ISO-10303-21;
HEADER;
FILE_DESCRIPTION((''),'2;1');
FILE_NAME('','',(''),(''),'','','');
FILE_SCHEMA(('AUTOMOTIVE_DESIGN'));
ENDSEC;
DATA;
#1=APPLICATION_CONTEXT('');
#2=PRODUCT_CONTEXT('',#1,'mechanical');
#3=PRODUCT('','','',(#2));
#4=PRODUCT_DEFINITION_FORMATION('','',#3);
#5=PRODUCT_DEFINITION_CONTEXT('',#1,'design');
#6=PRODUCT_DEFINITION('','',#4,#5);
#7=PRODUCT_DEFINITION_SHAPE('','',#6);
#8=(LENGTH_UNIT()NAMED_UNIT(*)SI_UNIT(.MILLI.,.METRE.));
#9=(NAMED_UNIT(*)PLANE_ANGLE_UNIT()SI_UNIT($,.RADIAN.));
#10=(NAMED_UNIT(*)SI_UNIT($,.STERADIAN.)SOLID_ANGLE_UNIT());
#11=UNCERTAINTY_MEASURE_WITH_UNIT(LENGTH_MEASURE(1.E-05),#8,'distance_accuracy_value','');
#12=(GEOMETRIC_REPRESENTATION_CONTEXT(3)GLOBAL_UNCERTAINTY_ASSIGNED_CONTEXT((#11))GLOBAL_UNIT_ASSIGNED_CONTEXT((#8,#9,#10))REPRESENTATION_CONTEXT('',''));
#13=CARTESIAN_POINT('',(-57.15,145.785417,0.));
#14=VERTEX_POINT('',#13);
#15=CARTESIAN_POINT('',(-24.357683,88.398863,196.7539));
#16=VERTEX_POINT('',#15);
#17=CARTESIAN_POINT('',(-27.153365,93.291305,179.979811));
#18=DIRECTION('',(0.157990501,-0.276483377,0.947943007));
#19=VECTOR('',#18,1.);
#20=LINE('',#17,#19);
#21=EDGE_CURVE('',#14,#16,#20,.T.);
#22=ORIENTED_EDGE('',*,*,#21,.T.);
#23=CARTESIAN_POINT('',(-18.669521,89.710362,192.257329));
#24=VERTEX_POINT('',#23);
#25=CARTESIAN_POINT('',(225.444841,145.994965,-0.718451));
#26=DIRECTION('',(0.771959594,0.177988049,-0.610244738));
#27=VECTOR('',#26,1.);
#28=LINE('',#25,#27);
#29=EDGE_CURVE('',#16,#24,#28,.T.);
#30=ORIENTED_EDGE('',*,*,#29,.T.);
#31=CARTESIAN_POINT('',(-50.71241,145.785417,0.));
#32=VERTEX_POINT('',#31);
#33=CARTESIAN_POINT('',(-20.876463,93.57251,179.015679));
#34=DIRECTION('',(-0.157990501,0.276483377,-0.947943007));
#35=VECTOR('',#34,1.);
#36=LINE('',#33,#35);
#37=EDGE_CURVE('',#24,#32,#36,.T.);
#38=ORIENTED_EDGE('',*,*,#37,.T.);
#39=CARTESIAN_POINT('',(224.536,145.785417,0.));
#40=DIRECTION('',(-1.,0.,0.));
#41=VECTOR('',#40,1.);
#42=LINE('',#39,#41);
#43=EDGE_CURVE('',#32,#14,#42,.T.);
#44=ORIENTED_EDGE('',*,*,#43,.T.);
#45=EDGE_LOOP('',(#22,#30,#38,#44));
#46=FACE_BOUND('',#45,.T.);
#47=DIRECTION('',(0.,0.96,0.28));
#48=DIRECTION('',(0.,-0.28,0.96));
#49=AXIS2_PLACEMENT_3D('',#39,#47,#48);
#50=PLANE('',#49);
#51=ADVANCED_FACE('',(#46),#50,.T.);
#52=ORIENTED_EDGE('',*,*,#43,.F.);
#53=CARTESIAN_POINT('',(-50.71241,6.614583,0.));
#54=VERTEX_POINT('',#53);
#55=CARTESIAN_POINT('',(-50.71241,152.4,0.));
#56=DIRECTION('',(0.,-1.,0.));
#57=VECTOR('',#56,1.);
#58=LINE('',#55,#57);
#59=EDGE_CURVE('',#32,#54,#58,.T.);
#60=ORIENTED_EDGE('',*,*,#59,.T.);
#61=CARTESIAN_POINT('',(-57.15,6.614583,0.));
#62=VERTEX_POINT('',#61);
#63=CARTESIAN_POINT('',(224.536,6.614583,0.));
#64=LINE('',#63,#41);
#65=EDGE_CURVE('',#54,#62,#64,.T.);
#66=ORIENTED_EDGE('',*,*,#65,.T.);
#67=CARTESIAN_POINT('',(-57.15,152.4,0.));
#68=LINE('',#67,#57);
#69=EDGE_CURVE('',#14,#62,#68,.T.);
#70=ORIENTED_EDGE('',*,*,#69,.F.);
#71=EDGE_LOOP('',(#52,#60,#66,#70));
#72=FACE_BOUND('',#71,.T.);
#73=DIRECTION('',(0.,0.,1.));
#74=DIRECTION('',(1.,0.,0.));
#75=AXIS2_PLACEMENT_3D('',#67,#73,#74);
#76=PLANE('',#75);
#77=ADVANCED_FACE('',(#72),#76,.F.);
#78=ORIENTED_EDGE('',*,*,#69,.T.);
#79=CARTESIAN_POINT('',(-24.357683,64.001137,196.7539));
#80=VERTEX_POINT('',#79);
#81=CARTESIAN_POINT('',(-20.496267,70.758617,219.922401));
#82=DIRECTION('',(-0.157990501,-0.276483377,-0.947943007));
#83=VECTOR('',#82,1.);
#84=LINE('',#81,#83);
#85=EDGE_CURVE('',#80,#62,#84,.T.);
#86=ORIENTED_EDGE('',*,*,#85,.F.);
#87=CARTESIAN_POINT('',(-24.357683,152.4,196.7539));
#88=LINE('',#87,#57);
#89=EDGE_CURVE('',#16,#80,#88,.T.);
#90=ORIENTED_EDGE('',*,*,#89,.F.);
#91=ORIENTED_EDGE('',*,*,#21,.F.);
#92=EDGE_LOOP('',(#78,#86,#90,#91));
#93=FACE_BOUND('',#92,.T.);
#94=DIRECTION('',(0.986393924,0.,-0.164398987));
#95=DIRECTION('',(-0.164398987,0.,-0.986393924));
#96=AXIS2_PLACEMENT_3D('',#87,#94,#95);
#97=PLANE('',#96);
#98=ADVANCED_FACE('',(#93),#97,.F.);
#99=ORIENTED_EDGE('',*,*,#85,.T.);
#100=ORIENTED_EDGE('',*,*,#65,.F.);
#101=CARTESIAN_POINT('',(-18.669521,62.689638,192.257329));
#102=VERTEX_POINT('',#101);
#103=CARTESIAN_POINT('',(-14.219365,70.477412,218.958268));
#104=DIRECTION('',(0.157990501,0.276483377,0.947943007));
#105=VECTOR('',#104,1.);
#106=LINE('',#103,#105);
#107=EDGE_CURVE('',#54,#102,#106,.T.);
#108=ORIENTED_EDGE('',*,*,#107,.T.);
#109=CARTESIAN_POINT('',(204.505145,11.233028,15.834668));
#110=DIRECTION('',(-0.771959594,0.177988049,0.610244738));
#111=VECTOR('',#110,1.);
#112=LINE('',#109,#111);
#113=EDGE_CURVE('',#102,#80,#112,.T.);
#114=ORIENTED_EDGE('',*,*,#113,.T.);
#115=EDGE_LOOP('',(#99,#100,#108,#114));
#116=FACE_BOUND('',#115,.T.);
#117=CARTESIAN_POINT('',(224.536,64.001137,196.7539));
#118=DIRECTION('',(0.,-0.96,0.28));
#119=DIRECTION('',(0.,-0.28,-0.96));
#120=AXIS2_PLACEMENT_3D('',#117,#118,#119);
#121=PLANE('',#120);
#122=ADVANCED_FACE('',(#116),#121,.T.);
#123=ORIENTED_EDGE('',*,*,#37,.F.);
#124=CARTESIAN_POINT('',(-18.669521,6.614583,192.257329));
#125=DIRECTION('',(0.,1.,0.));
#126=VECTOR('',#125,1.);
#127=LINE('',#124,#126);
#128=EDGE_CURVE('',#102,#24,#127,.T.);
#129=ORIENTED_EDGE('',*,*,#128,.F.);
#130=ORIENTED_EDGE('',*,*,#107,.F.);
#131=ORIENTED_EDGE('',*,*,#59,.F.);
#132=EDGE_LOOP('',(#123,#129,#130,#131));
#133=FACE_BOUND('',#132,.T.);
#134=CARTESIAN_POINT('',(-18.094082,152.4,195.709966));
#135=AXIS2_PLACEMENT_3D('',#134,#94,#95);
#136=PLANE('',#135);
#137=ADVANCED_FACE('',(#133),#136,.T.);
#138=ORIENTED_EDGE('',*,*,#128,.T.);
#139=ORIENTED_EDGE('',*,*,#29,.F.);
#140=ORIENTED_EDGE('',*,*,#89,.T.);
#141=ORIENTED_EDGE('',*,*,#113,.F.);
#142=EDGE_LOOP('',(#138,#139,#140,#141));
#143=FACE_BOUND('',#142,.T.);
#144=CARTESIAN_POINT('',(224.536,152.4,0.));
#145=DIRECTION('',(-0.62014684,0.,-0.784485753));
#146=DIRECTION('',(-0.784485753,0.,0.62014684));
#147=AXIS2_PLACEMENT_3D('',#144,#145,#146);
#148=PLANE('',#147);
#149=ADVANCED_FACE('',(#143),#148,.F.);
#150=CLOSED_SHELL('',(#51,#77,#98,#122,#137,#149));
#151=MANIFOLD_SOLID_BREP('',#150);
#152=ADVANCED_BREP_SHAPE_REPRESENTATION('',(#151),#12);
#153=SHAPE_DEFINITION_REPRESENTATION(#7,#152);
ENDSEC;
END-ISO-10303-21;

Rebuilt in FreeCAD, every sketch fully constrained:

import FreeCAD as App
import Part
import Sketcher
Q = App.Units.Quantity


def faces_at(feature, points):
    """Names of the faces that lie closest to the given points."""
    faces = feature.Shape.Faces
    near = lambda p: min(range(len(faces)), key=lambda i: faces[i].distToShape(Part.Vertex(*p))[0])
    return sorted({f"Face{near(p) + 1}" for p in points})


def add_polygon(sketch, points):
    """Adds a closed chain of lines whose ends are joined by coincident constraints."""
    first, n = sketch.GeometryCount, len(points)
    for a, b in zip(points, points[1:] + points[:1]):
        sketch.addGeometry(Part.LineSegment(App.Vector(*a, 0), App.Vector(*b, 0)), False)
    for i in range(n):
        sketch.addConstraint(Sketcher.Constraint("Coincident", first + i, 2, first + (i + 1) % n, 1))

doc = App.newDocument("Part")
body = doc.addObject("PartDesign::Body", "Body")

# Sketch on XZ plane
sketch1 = body.newObject("Sketcher::SketchObject", "Sketch")
sketch1.AttachmentSupport = (doc.getObject("XZ_Plane"), [""])
sketch1.MapMode = "FlatFace"
add_polygon(sketch1, [(224.536, 0), (-57.15, 0), (-24.357683, 196.7539)])  # lines 0-2
sketch1.addConstraint([
    Sketcher.Constraint("Horizontal", 0),
    Sketcher.Constraint("PointOnObject", 0, 2, -1),
    Sketcher.Constraint("DistanceX", 0, 2, 0, 1, Q("11.09 in")),
    Sketcher.Constraint("DistanceX", 0, 2, -1, 1, Q("2.25 in")),
    Sketcher.Constraint("DistanceY", -1, 1, 1, 2, 196.7539),
    Sketcher.Constraint("Distance", 1, 199.467875),
])
pad1 = body.newObject("PartDesign::Pad", "Pad")
pad1.Profile = sketch1
pad1.Length = Q("6 in")
pad1.Reversed = True

# Sketch on YZ plane
sketch2 = body.newObject("Sketcher::SketchObject", "Sketch001")
sketch2.AttachmentSupport = (doc.getObject("YZ_Plane"), [""])
sketch2.MapMode = "FlatFace"
sketch2.AttachmentOffset = App.Placement(App.Vector(0, 0, -2.5 * 25.4), App.Rotation())
add_polygon(sketch2, [(68.641417, 235.342), (-38.588, 235.342), (-38.588, -38.588), (190.988, -38.588), (190.988, 235.342), (83.758583, 235.342), (152.4, 0), (0, 0)])  # lines 0-7
sketch2.addConstraint([
    Sketcher.Constraint("Horizontal", 0),
    Sketcher.Constraint("Vertical", 1),
    Sketcher.Constraint("Horizontal", 2),
    Sketcher.Constraint("Vertical", 3),
    Sketcher.Constraint("Horizontal", 4),
    Sketcher.Constraint("Horizontal", 6),
    Sketcher.Constraint("Coincident", 6, 2, -1, 1),
    Sketcher.Constraint("Horizontal", 0, 2, 3, 2),
    Sketcher.Constraint("Equal", 0, 4),
    Sketcher.Constraint("Equal", 5, 7),
    Sketcher.Constraint("DistanceX", 6, 2, 6, 1, Q("6 in")),
    Sketcher.Constraint("DistanceX", 2, 1, 2, 2, 229.576),
    Sketcher.Constraint("DistanceY", 1, 2, 1, 1, 273.93),
    Sketcher.Constraint("DistanceY", -1, 1, 0, 2, 235.342),
    Sketcher.Constraint("DistanceX", 0, 2, 0, 1, 107.229417),
])
pocket1 = body.newObject("PartDesign::Pocket", "Pocket")
pocket1.Profile = sketch2
pocket1.Type = "ThroughAll"
pocket1.Reversed = True
doc.recompute()

thickness = body.newObject("PartDesign::Thickness", "Thickness")
thickness.Base = (pocket1, faces_at(pocket1, [(83.693, 76.2, 0)]))
thickness.Value = Q("0.25 in")
thickness.Reversed = True
thickness.Join = "Intersection"

# Sketch on YZ plane
sketch3 = body.newObject("Sketcher::SketchObject", "Sketch002")
sketch3.AttachmentSupport = (doc.getObject("YZ_Plane"), [""])
sketch3.MapMode = "FlatFace"
sketch3.AttachmentOffset = App.Placement(App.Vector(0, 0, -2.5 * 25.4), App.Rotation())
add_polygon(sketch3, [(145.785417, 0), (152.4, 0), (95.013446, 196.7539), (88.398863, 196.7539)])  # lines 0-3
add_polygon(sketch3, [(6.614583, 0), (64.001137, 196.7539), (57.386554, 196.7539), (0, 0)])  # lines 4-7
sketch3.addConstraint([
    Sketcher.Constraint("Horizontal", 0),
    Sketcher.Constraint("Horizontal", 2),
    Sketcher.Constraint("Horizontal", 5),
    Sketcher.Constraint("Horizontal", 7),
    Sketcher.Constraint("Coincident", 6, 2, -1, 1),
    Sketcher.Constraint("PointOnObject", 0, 2, -1),
    Sketcher.Constraint("Parallel", 1, 3),
    Sketcher.Constraint("Parallel", 4, 6),
    Sketcher.Constraint("Horizontal", 2, 2, 4, 2),
    Sketcher.Constraint("Equal", 2, 5),
    Sketcher.Constraint("Equal", 3, 4),
    Sketcher.Constraint("DistanceX", -1, 1, 0, 2, Q("6 in")),
    Sketcher.Constraint("DistanceY", -1, 1, 1, 2, 196.7539),
    Sketcher.Constraint("Distance", 1, 204.951979),
    Sketcher.Constraint("DistanceX", 0, 1, 0, 2, 6.614583),
])
pocket2 = body.newObject("PartDesign::Pocket", "Pocket001")
pocket2.Profile = sketch3
pocket2.Type = "ThroughAll"
pocket2.Reversed = True

# Sketch on XZ plane
sketch4 = body.newObject("Sketcher::SketchObject", "Sketch003")
sketch4.AttachmentSupport = (doc.getObject("XZ_Plane"), [""])
sketch4.MapMode = "FlatFace"
sketch4.AttachmentOffset = App.Placement(App.Vector(0, 0, -5.9 * 25.4), App.Rotation())
add_polygon(sketch4, [(-19.861548, 185.105168), (-18.669521, 192.257329), (344.317072, 192.257329), (317.879718, -72.86427), (-35.136715, -43.316639)])  # lines 0-4
sketch4.addConstraint([
    Sketcher.Constraint("Horizontal", 1),
    Sketcher.Constraint("DistanceY", 2, 2, 1, 2, 265.1216),
    Sketcher.Constraint("Distance", 3, 354.25085),
    Sketcher.Constraint("DistanceX", 1, 1, 1, 2, 362.986593),
    Sketcher.Constraint("DistanceX", 0, 2, -1, 1, 18.669521),
    Sketcher.Constraint("DistanceY", -1, 1, 0, 2, 192.257329),
    Sketcher.Constraint("DistanceY", 3, 2, -1, 1, 43.316639),
    Sketcher.Constraint("DistanceX", 4, 2, -1, 1, 19.861548),
    Sketcher.Constraint("DistanceY", -1, 1, 4, 2, 185.105168),
    Sketcher.Constraint("DistanceX", 0, 2, 2, 2, 336.549239),
])
pocket3 = body.newObject("PartDesign::Pocket", "Pocket002")
pocket3.Profile = sketch4
pocket3.Type = "ThroughAll"
pocket3.Reversed = True

doc.recompute()
